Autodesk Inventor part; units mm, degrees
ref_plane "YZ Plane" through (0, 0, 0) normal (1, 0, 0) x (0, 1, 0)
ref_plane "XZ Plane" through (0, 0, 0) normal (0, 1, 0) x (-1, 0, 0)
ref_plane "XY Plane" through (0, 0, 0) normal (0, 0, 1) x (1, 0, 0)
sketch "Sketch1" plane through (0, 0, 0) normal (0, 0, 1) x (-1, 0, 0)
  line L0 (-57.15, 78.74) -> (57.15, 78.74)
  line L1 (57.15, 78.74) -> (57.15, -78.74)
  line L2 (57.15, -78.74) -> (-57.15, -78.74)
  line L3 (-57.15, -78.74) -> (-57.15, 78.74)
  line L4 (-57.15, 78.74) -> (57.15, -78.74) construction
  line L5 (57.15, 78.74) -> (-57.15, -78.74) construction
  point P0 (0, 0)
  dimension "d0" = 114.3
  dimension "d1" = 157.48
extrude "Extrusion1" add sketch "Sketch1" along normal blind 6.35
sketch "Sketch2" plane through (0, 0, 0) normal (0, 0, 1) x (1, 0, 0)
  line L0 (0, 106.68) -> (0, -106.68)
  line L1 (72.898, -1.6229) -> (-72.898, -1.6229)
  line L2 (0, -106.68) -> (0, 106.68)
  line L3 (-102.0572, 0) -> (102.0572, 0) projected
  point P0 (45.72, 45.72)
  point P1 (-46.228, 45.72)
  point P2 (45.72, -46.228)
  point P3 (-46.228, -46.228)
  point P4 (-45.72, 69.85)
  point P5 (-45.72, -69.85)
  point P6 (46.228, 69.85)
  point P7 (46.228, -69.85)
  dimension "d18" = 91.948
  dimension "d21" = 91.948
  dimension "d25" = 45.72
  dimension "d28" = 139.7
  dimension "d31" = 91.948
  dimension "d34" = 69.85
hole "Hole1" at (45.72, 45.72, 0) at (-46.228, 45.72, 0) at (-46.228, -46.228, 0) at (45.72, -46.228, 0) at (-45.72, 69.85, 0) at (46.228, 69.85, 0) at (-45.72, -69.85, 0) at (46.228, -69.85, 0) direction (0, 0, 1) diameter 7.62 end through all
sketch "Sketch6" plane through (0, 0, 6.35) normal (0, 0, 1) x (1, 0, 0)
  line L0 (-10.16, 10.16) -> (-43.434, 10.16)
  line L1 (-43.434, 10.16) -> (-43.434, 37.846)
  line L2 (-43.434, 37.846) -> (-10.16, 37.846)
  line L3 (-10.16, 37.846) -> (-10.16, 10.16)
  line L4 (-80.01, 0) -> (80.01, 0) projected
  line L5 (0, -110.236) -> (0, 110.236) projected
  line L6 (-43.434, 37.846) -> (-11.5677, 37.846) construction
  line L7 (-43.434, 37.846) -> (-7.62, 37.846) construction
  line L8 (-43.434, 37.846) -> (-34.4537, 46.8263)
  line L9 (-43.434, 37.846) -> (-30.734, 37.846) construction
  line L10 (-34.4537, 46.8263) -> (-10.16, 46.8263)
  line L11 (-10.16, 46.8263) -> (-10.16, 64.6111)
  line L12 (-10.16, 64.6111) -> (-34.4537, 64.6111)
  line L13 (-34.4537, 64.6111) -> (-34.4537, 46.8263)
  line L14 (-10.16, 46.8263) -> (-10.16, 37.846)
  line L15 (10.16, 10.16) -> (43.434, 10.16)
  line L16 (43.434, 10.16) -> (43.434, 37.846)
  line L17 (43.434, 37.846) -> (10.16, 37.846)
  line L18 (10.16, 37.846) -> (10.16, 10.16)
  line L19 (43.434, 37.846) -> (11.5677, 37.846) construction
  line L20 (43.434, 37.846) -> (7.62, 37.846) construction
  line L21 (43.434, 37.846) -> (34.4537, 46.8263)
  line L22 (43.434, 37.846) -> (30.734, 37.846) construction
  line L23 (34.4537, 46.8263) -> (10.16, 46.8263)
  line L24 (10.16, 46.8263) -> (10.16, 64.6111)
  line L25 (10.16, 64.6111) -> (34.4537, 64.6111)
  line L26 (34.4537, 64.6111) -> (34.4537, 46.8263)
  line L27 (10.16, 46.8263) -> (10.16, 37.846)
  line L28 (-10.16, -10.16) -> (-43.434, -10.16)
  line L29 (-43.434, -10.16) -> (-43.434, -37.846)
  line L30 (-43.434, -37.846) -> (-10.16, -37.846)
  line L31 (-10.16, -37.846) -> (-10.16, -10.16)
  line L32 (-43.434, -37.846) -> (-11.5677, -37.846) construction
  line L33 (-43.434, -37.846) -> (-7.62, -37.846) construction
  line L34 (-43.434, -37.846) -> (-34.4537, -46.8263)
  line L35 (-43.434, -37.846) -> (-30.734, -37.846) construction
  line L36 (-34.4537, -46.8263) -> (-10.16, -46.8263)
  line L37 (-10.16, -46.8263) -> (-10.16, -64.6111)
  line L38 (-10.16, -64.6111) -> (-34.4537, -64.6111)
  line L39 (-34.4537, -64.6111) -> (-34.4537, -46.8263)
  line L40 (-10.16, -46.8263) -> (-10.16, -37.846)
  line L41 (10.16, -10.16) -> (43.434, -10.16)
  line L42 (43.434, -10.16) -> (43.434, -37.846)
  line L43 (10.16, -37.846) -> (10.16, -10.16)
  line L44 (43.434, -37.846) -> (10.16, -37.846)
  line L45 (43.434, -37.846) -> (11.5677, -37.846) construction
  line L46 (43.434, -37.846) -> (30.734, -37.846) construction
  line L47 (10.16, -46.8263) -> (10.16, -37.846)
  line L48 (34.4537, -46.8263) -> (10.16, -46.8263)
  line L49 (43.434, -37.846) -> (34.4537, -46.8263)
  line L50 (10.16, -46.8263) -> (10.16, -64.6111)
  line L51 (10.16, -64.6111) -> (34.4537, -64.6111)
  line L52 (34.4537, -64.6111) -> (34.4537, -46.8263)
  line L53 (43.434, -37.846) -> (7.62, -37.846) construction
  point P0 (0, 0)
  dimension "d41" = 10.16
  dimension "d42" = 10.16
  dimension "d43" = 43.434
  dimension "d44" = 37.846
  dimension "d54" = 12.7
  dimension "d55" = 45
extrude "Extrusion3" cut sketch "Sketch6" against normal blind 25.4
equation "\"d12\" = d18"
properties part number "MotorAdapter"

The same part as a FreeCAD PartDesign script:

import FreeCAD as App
import Part
import Sketcher

V = App.Vector
Q = App.Units.Quantity


def add_polygon(sketch, points):
    """Adds a closed chain of lines whose ends are joined by coincident constraints."""
    first, n = sketch.GeometryCount, len(points)
    for a, b in zip(points, points[1:] + points[:1]):
        sketch.addGeometry(Part.LineSegment(App.Vector(*a, 0), App.Vector(*b, 0)), False)
    for i in range(n):
        sketch.addConstraint(Sketcher.Constraint("Coincident", first + i, 2, first + (i + 1) % n, 1))

doc = App.newDocument("Part")
params = doc.addObject("Spreadsheet::Sheet", "Params")
for row, (alias, value) in enumerate([
    ("sketch1_width", "4.5 in"),
    ("sketch1_height", "6.2 in"),
    ("pad1_length", "0.25 in"),
    ("sketch2_diameter", "0.3 in"),
    ("hole_diameter", "0.3 in"),
    ("sketch3_length", "0.5 in"),
    ("pocket1_length", "1 in"),
], start=1):
    params.set(f"A{row}", alias)
    params.set(f"B{row}", "=" + value)
    params.setAlias(f"B{row}", alias)

body = doc.addObject("PartDesign::Body", "Body")

sketch1 = body.newObject("Sketcher::SketchObject", "Sketch")
sketch1.AttachmentSupport = (doc.getObject("XY_Plane"), [""])
sketch1.MapMode = "FlatFace"
add_polygon(sketch1, [(-57.15, -78.74), (57.15, -78.74), (57.15, 78.74), (-57.15, 78.74)])
sketch1.addConstraint([
    Sketcher.Constraint("Horizontal", 0),
    Sketcher.Constraint("Vertical", 1),
    Sketcher.Constraint("Horizontal", 2),
    Sketcher.Constraint("Vertical", 3),
    Sketcher.Constraint("Symmetric", 0, 2, 2, 2, -1, 1),
    Sketcher.Constraint("DistanceX", 0, 1, 0, 2, Q("4.5 in")),
    Sketcher.Constraint("DistanceY", 1, 1, 1, 2, Q("6.2 in")),
])
sketch1.setExpression("Constraints[9]", "Params.sketch1_width")
sketch1.setExpression("Constraints[10]", "Params.sketch1_height")
pad1 = body.newObject("PartDesign::Pad", "Pad")
pad1.Profile = sketch1
pad1.setExpression("Length", "Params.pad1_length")

sketch2 = body.newObject("Sketcher::SketchObject", "Sketch001")
sketch2.AttachmentSupport = (doc.getObject("XY_Plane"), [""])
sketch2.MapMode = "FlatFace"
sketch2.addGeometry([
    Part.Circle(V(45.72, 45.72, 0), V(0, 0, 1), 3.81),
    Part.Circle(V(-46.228, 45.72, 0), V(0, 0, 1), 3.81),
    Part.Circle(V(-46.228, -46.228, 0), V(0, 0, 1), 3.81),
    Part.Circle(V(45.72, -46.228, 0), V(0, 0, 1), 3.81),
    Part.Circle(V(-45.72, 69.85, 0), V(0, 0, 1), 3.81),
    Part.Circle(V(46.228, 69.85, 0), V(0, 0, 1), 3.81),
    Part.Circle(V(-45.72, -69.85, 0), V(0, 0, 1), 3.81),
    Part.Circle(V(46.228, -69.85, 0), V(0, 0, 1), 3.81),
], False)
sketch2.addConstraint([
    Sketcher.Constraint("Equal", 0, 1),
    Sketcher.Constraint("Equal", 1, 2),
    Sketcher.Constraint("Equal", 2, 3),
    Sketcher.Constraint("Equal", 3, 4),
    Sketcher.Constraint("Equal", 4, 5),
    Sketcher.Constraint("Equal", 5, 6),
    Sketcher.Constraint("Equal", 6, 7),
    Sketcher.Constraint("Symmetric", 4, 3, 6, 3, -1),
    Sketcher.Constraint("Symmetric", 5, 3, 7, 3, -1),
    Sketcher.Constraint("Horizontal", 0, 3, 1, 3),
    Sketcher.Constraint("Horizontal", 2, 3, 3, 3),
    Sketcher.Constraint("Horizontal", 4, 3, 5, 3),
    Sketcher.Constraint("Vertical", 1, 3, 2, 3),
    Sketcher.Constraint("Vertical", 0, 3, 3, 3),
    Sketcher.Constraint("Diameter", 0, Q("0.3 in")),
    Sketcher.Constraint("DistanceX", -1, 1, 0, 3, Q("1.8 in")),
    Sketcher.Constraint("DistanceY", -1, 1, 0, 3, Q("1.8 in")),
    Sketcher.Constraint("DistanceX", 4, 3, -1, 1, Q("1.8 in")),
    Sketcher.Constraint("DistanceY", 6, 3, 4, 3, Q("5.5 in")),
    Sketcher.Constraint("DistanceX", 1, 3, -1, 1, Q("1.82 in")),
    Sketcher.Constraint("DistanceY", 2, 3, -1, 1, Q("1.82 in")),
    Sketcher.Constraint("DistanceX", -1, 1, 5, 3, Q("1.82 in")),
])
sketch2.setExpression("Constraints[14]", "Params.sketch2_diameter")
doc.recompute()
hole = body.newObject("PartDesign::Hole", "Hole")
hole.Profile = sketch2
hole.ThreadType = "None"
hole.setExpression("Diameter", "Params.hole_diameter")
hole.DepthType = "ThroughAll"
hole.Reversed = True

sketch3 = body.newObject("Sketcher::SketchObject", "Sketch002")
sketch3.AttachmentSupport = (doc.getObject("XY_Plane"), [""])
sketch3.MapMode = "FlatFace"
sketch3.AttachmentOffset = App.Placement(V(0, 0, 0.25 * 25.4), App.Rotation())
add_polygon(sketch3, [(-43.434, 10.16), (-10.16, 10.16), (-10.16, 64.6111), (-34.4537, 64.6111), (-34.4537, 46.8263), (-43.434, 37.846)])
add_polygon(sketch3, [(10.16, 10.16), (43.434, 10.16), (43.434, 37.846), (34.4537, 46.8263), (34.4537, 64.6111), (10.16, 64.6111)])
add_polygon(sketch3, [(-10.16, -10.16), (-43.434, -10.16), (-43.434, -37.846), (-34.4537, -46.8263), (-34.4537, -64.6111), (-10.16, -64.6111)])
add_polygon(sketch3, [(43.434, -10.16), (10.16, -10.16), (10.16, -64.6111), (34.4537, -64.6111), (34.4537, -46.8263), (43.434, -37.846)])
sketch3.addConstraint([
    Sketcher.Constraint("Horizontal", 0),
    Sketcher.Constraint("Vertical", 1),
    Sketcher.Constraint("Horizontal", 2),
    Sketcher.Constraint("Vertical", 3),
    Sketcher.Constraint("Vertical", 5),
    Sketcher.Constraint("Horizontal", 6),
    Sketcher.Constraint("Vertical", 7),
    Sketcher.Constraint("Vertical", 9),
    Sketcher.Constraint("Horizontal", 10),
    Sketcher.Constraint("Vertical", 11),
    Sketcher.Constraint("Horizontal", 12),
    Sketcher.Constraint("Vertical", 13),
    Sketcher.Constraint("Vertical", 15),
    Sketcher.Constraint("Horizontal", 16),
    Sketcher.Constraint("Vertical", 17),
    Sketcher.Constraint("Horizontal", 18),
    Sketcher.Constraint("Vertical", 19),
    Sketcher.Constraint("Horizontal", 20),
    Sketcher.Constraint("Vertical", 21),
    Sketcher.Constraint("Vertical", 23),
    Sketcher.Constraint("Symmetric", 6, 2, 12, 2, -1, 1),
    Sketcher.Constraint("Symmetric", 8, 2, 14, 2, -1, 1),
    Sketcher.Constraint("Symmetric", 10, 2, 16, 2, -1, 1),
    Sketcher.Constraint("Symmetric", 0, 2, 18, 2, -1, 1),
    Sketcher.Constraint("Symmetric", 2, 2, 20, 2, -1, 1),
    Sketcher.Constraint("Symmetric", 4, 2, 22, 2, -1, 1),
    Sketcher.Constraint("Symmetric", 5, 2, 6, 2, -2),
    Sketcher.Constraint("Symmetric", 3, 2, 8, 2, -2),
    Sketcher.Constraint("Symmetric", 1, 2, 10, 2, -2),
    Sketcher.Constraint("Perpendicular", 4, 8),
    Sketcher.Constraint("Parallel", 8, 14),
    Sketcher.Constraint("Perpendicular", 14, 22),
    Sketcher.Constraint("Horizontal", 4, 2, 7, 2),
    Sketcher.Constraint("Distance", 4, Q("0.5 in")),
    Sketcher.Constraint("DistanceX", 0, 2, -1, 1, Q("0.4 in")),
    Sketcher.Constraint("DistanceY", -1, 1, 0, 2, Q("0.4 in")),
    Sketcher.Constraint("DistanceX", 4, 2, -1, 1, Q("1.71 in")),
    Sketcher.Constraint("DistanceY", -1, 1, 4, 2, Q("1.49 in")),
    Sketcher.Constraint("DistanceY", 3, 2, 3, 1, Q("0.7002 in")),
])
sketch3.setExpression("Constraints[57]", "Params.sketch3_length")
pocket1 = body.newObject("PartDesign::Pocket", "Pocket")
pocket1.Profile = sketch3
pocket1.setExpression("Length", "Params.pocket1_length")

doc.recompute()
